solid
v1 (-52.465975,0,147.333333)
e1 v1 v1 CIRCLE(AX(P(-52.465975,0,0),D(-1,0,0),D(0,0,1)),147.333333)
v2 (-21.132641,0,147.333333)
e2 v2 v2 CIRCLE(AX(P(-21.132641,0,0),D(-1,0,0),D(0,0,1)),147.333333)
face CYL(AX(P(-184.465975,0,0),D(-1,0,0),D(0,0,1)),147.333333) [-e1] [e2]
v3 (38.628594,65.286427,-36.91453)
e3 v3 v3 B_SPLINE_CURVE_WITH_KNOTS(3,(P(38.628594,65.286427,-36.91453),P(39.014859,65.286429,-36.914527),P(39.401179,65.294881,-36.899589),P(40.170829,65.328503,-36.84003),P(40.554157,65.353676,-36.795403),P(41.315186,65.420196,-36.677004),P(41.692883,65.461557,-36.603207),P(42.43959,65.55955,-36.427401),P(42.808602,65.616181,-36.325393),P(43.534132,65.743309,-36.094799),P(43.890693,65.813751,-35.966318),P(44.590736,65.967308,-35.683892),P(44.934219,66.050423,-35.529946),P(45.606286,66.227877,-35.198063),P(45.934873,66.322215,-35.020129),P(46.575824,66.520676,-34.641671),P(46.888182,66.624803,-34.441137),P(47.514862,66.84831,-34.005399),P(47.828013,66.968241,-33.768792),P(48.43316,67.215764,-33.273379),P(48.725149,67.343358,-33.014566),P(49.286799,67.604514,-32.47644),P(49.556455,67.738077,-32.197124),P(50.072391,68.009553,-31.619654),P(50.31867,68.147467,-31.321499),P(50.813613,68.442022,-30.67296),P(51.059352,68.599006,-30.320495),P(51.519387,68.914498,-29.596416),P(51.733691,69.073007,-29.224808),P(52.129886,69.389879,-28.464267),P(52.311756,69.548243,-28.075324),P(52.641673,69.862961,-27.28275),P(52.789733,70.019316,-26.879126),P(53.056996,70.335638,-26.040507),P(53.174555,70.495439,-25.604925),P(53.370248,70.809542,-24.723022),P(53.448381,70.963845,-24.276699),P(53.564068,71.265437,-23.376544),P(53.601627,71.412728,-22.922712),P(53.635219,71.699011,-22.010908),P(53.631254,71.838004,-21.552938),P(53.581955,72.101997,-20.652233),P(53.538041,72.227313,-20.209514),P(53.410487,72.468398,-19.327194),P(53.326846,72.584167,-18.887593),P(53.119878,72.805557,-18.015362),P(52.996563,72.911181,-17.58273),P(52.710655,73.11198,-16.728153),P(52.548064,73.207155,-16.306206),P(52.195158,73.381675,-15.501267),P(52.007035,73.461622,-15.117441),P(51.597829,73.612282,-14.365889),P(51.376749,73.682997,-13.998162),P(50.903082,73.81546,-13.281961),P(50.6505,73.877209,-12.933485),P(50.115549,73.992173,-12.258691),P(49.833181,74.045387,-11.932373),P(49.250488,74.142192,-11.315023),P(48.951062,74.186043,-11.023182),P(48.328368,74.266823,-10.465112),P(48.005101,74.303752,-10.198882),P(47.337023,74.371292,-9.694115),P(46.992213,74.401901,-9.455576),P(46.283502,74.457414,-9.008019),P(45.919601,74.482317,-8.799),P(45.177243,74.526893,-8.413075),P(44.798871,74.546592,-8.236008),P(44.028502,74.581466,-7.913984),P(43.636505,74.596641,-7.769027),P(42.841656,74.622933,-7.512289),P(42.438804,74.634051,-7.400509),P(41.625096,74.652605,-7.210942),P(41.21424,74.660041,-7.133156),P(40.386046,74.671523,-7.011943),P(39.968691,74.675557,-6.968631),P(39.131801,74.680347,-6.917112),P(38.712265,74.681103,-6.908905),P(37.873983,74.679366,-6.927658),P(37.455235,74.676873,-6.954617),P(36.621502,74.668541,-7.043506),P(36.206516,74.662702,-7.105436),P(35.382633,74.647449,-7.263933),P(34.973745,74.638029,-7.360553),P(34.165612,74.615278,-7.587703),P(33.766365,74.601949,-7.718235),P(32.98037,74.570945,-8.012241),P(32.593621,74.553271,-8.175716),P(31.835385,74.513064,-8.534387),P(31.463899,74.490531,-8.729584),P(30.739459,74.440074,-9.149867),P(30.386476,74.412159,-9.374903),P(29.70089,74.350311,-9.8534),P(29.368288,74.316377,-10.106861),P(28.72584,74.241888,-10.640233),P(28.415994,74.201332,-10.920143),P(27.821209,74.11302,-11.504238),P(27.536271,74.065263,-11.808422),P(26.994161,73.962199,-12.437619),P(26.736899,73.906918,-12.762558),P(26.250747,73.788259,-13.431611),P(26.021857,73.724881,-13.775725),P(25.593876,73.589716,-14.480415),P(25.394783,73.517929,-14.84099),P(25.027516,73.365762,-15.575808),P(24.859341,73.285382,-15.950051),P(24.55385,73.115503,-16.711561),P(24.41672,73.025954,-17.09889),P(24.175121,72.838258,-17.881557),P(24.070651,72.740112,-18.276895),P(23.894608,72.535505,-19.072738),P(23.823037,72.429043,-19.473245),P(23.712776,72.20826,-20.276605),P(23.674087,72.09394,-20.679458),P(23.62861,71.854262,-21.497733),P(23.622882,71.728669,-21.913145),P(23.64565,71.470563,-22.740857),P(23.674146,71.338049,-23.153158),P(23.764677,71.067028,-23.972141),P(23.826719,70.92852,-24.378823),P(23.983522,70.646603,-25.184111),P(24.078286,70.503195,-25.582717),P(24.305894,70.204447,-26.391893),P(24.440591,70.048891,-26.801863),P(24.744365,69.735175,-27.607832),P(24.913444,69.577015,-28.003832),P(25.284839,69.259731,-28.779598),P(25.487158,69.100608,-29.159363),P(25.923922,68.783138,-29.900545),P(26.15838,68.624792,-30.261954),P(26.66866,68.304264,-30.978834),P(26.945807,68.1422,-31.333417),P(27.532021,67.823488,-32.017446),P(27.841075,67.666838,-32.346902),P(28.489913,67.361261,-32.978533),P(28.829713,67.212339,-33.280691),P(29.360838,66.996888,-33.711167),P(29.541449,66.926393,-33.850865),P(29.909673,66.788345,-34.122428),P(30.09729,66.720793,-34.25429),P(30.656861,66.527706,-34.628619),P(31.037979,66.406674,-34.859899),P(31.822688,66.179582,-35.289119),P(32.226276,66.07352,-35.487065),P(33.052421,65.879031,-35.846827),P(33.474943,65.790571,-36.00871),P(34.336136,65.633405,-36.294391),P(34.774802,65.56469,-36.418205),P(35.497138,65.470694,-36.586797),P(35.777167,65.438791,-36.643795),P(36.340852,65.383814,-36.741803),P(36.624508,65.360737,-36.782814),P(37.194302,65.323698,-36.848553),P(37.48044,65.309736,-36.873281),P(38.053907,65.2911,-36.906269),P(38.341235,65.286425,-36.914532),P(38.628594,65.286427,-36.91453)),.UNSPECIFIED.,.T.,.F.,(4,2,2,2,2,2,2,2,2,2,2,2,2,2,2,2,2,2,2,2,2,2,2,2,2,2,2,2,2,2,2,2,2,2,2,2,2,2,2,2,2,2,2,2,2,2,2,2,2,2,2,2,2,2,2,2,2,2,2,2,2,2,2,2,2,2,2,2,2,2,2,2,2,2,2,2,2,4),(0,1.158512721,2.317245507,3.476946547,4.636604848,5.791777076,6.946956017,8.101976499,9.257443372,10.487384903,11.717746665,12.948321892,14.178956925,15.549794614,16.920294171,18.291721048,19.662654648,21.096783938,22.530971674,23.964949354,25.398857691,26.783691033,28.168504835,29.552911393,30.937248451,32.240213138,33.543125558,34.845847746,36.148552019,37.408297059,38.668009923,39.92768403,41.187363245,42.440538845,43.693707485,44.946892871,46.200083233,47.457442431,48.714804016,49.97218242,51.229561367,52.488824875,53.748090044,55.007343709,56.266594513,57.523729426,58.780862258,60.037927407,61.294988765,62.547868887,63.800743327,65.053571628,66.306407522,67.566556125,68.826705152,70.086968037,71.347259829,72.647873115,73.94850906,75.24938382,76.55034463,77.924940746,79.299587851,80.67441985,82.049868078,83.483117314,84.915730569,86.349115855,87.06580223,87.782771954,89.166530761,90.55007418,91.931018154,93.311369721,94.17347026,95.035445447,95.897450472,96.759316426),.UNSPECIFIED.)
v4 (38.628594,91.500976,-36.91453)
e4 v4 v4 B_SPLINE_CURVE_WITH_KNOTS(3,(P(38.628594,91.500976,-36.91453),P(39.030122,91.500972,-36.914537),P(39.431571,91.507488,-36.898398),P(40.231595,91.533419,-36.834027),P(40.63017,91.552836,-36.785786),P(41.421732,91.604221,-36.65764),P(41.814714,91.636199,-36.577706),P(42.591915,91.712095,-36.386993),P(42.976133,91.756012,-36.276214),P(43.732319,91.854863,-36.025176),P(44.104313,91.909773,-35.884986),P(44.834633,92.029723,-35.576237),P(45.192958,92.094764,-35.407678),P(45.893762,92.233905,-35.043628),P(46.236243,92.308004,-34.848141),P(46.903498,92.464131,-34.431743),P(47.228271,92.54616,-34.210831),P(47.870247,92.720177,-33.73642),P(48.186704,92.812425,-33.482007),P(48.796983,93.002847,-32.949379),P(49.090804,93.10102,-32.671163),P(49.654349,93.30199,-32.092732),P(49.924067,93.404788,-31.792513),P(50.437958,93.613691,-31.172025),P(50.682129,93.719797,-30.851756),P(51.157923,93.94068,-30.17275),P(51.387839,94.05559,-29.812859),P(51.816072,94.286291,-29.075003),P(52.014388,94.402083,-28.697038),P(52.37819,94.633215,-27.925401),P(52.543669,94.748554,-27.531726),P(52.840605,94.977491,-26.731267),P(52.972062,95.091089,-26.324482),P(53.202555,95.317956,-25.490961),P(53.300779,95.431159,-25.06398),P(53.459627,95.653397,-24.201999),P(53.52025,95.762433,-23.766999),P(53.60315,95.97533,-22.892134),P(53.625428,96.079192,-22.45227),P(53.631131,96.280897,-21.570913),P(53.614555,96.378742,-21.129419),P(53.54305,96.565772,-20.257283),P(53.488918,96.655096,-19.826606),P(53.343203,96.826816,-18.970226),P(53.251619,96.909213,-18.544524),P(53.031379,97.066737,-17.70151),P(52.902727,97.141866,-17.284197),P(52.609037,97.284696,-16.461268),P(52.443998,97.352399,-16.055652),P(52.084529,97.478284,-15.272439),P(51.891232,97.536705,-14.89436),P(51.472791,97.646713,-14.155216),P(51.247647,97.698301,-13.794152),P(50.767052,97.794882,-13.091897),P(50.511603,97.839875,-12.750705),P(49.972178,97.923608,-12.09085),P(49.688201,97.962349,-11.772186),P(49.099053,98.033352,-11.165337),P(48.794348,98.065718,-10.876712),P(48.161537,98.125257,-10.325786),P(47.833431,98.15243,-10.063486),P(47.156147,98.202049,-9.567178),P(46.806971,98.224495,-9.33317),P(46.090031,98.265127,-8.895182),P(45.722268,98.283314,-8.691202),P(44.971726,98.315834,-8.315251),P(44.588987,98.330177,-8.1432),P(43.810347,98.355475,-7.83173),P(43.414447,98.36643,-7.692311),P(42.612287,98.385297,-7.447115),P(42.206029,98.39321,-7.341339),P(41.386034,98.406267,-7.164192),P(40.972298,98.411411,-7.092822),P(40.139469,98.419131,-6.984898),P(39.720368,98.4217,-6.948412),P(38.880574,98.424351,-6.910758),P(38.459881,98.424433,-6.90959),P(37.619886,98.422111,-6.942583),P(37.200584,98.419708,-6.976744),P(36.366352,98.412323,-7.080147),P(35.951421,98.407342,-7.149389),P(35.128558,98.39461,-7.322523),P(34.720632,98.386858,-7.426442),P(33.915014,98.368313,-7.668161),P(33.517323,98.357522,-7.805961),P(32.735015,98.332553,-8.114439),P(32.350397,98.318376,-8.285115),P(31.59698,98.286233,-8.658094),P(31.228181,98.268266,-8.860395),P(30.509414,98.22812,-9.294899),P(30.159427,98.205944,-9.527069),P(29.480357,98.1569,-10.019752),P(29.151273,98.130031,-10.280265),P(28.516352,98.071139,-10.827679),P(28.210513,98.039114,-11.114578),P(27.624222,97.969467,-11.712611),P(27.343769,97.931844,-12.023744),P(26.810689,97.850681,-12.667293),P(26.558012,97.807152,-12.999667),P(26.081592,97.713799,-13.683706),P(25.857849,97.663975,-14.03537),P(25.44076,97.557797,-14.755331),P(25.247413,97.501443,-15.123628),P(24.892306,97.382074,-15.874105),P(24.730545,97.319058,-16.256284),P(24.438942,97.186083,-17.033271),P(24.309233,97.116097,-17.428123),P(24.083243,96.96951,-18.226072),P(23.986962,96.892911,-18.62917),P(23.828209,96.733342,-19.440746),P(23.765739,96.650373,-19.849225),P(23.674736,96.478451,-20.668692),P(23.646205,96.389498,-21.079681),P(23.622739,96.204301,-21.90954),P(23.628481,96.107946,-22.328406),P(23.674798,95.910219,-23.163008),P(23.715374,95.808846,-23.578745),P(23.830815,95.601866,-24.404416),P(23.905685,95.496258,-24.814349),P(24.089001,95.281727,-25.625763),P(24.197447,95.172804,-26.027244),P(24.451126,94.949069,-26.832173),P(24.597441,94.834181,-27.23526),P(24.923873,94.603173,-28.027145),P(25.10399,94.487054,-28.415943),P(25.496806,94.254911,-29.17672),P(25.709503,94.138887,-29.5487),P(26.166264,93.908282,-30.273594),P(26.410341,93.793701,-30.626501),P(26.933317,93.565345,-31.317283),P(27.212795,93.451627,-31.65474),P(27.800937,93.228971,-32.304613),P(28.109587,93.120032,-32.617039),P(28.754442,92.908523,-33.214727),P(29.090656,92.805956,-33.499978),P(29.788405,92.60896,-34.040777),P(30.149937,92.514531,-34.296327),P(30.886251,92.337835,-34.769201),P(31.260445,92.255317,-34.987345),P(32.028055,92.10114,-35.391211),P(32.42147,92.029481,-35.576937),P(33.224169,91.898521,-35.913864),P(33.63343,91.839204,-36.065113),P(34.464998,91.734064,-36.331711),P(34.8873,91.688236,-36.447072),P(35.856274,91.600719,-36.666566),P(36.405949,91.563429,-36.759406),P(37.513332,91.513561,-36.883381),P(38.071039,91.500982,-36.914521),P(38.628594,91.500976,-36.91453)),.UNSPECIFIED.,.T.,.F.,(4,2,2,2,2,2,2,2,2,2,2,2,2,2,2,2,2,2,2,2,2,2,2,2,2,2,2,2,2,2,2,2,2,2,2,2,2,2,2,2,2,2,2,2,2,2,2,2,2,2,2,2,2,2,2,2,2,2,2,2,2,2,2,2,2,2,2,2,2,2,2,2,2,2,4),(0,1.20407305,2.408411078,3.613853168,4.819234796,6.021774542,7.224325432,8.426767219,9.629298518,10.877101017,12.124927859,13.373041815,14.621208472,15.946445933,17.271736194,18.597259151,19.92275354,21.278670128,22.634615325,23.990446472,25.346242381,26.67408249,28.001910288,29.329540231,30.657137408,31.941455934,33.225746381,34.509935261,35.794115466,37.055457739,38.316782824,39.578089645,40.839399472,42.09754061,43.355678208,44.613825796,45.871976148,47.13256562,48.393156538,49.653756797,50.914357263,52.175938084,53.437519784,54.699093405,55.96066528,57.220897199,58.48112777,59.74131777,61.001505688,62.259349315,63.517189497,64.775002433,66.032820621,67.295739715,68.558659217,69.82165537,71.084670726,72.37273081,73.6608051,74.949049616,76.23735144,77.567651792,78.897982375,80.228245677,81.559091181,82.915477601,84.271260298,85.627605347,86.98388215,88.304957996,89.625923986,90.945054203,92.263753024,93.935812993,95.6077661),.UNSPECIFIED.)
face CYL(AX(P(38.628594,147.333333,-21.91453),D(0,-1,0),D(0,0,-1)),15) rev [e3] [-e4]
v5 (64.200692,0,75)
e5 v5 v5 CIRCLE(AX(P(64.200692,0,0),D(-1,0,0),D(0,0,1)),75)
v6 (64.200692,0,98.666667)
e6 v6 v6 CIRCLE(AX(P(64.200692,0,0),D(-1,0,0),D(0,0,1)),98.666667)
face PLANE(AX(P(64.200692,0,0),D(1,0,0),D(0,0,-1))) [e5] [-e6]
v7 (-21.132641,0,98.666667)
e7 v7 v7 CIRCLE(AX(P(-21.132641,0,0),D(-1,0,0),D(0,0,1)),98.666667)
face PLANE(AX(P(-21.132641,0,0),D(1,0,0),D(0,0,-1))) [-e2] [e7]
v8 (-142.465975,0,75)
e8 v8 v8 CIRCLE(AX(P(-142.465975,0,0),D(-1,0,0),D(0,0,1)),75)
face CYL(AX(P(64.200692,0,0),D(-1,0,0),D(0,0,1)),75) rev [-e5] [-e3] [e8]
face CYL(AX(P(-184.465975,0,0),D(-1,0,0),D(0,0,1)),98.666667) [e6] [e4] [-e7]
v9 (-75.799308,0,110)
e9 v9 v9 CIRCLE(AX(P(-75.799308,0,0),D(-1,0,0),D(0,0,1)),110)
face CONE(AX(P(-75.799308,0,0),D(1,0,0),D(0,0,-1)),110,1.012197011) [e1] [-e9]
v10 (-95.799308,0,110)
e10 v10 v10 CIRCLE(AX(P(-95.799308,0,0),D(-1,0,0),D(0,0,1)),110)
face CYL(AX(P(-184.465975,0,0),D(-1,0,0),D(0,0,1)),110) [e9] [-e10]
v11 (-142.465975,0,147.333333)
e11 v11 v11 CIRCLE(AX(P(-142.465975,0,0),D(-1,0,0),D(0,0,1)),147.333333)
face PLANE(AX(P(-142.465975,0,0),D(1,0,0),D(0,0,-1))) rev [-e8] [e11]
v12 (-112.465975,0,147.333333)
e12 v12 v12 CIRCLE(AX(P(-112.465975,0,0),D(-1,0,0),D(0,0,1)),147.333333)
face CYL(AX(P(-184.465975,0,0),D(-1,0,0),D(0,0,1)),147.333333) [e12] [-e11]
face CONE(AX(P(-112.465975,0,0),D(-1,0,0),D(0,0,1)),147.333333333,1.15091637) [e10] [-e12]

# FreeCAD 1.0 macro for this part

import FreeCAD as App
import Part
import Sketcher
from FreeCAD import Vector
Q = App.Units.Quantity

doc = App.newDocument("Part")
body = doc.addObject("PartDesign::Body", "Body")

sketch1 = body.newObject("Sketcher::SketchObject", "Sketch")
sketch1.AttachmentSupport = (doc.getObject("XY_Plane"), [""])
sketch1.MapMode = "FlatFace"
sketch1.addGeometry(Part.LineSegment(Vector(-137, 0, 0), Vector(64, 0, 0)), False)
sketch1.addGeometry(Part.LineSegment(Vector(64, 0, 0), Vector(64, 74, 0)), False)
sketch1.addGeometry(Part.LineSegment(Vector(64, 74, 0), Vector(64, 99, 0)), False)
sketch1.addGeometry(Part.LineSegment(Vector(64, 99, 0), Vector(-21, 99, 0)), False)
sketch1.addGeometry(Part.LineSegment(Vector(-21, 99, 0), Vector(-21, 147, 0)), False)
sketch1.addGeometry(Part.LineSegment(Vector(-21, 147, 0), Vector(-52, 147, 0)), False)
sketch1.addGeometry(Part.LineSegment(Vector(-52, 147, 0), Vector(-76, 110, 0)), False)
sketch1.addGeometry(Part.LineSegment(Vector(-76, 110, 0), Vector(-96, 110, 0)), False)
sketch1.addGeometry(Part.LineSegment(Vector(-96, 110, 0), Vector(-112, 147, 0)), False)
sketch1.addGeometry(Part.LineSegment(Vector(-112, 147, 0), Vector(-142, 147, 0)), False)
sketch1.addGeometry(Part.LineSegment(Vector(-142, 147, 0), Vector(-142, 0, 0)), False)
sketch1.addGeometry(Part.LineSegment(Vector(-142, 0, 0), Vector(-137, 0, 0)), False)
sketch1.addConstraint(Sketcher.Constraint("Coincident", 0, 2, 1, 1))
sketch1.addConstraint(Sketcher.Constraint("Coincident", 1, 2, 2, 1))
sketch1.addConstraint(Sketcher.Constraint("Coincident", 2, 2, 3, 1))
sketch1.addConstraint(Sketcher.Constraint("Coincident", 3, 2, 4, 1))
sketch1.addConstraint(Sketcher.Constraint("Coincident", 4, 2, 5, 1))
sketch1.addConstraint(Sketcher.Constraint("Coincident", 5, 2, 6, 1))
sketch1.addConstraint(Sketcher.Constraint("Coincident", 6, 2, 7, 1))
sketch1.addConstraint(Sketcher.Constraint("Coincident", 7, 2, 8, 1))
sketch1.addConstraint(Sketcher.Constraint("Coincident", 8, 2, 9, 1))
sketch1.addConstraint(Sketcher.Constraint("Coincident", 9, 2, 10, 1))
sketch1.addConstraint(Sketcher.Constraint("Coincident", 10, 2, 11, 1))
sketch1.addConstraint(Sketcher.Constraint("Coincident", 11, 2, 0, 1))
sketch1.addConstraint(Sketcher.Constraint("Horizontal", 0))
sketch1.addConstraint(Sketcher.Constraint("Vertical", 1))
sketch1.addConstraint(Sketcher.Constraint("Vertical", 2))
sketch1.addConstraint(Sketcher.Constraint("Horizontal", 3))
sketch1.addConstraint(Sketcher.Constraint("Vertical", 4))
sketch1.addConstraint(Sketcher.Constraint("Horizontal", 5))
sketch1.addConstraint(Sketcher.Constraint("Horizontal", 7))
sketch1.addConstraint(Sketcher.Constraint("Horizontal", 9))
sketch1.addConstraint(Sketcher.Constraint("Vertical", 10))
sketch1.addConstraint(Sketcher.Constraint("Horizontal", 11))
sketch1.addConstraint(Sketcher.Constraint("PointOnObject", 0, 2, -1))
sketch1.addConstraint(Sketcher.Constraint("Horizontal", 5, 2, 8, 2))
sketch1.addConstraint(Sketcher.Constraint("DistanceX", 7, 2, 7, 1, Q("20 mm")))
sketch1.addConstraint(Sketcher.Constraint("DistanceX", 9, 2, 9, 1, Q("30 mm")))
sketch1.addConstraint(Sketcher.Constraint("DistanceX", 11, 1, 11, 2, Q("5 mm")))
sketch1.addConstraint(Sketcher.Constraint("DistanceY", 2, 1, 2, 2, Q("25 mm")))
sketch1.addConstraint(Sketcher.Constraint("DistanceY", -1, 1, 6, 2, Q("110 mm")))
sketch1.addConstraint(Sketcher.Constraint("DistanceX", 6, 2, 2, 2, Q("140 mm")))
sketch1.addConstraint(Sketcher.Constraint("DistanceX", 8, 2, 5, 2, Q("60 mm")))
sketch1.addConstraint(Sketcher.Constraint("Distance", 8, Q("40.884662 mm")))
sketch1.addConstraint(Sketcher.Constraint("DistanceX", 0, 1, 0, 2, Q("201.666667 mm")))
sketch1.addConstraint(Sketcher.Constraint("DistanceX", 3, 2, 3, 1, Q("85.333333 mm")))
sketch1.addConstraint(Sketcher.Constraint("DistanceY", 1, 1, 1, 2, Q("73.666667 mm")))
sketch1.addConstraint(Sketcher.Constraint("DistanceX", 3, 2, -1, 1, Q("21.132641 mm")))
revolution = body.newObject("PartDesign::Revolution", "Revolution")
revolution.Profile = sketch1
revolution.ReferenceAxis = (sketch1, ["H_Axis"])
revolution.Angle = 360

sketch2 = body.newObject("Sketcher::SketchObject", "Sketch001")
sketch2.AttachmentSupport = (doc.getObject("YZ_Plane"), [""])
sketch2.MapMode = "FlatFace"
sketch2.AttachmentOffset = App.Placement(Vector(0, 0, -142.465975), App.Rotation())
sketch2.addGeometry(Part.Circle(Vector(0, 0, 0), Vector(0, 0, 1), 75), False)
sketch2.addConstraint(Sketcher.Constraint("Coincident", 0, 3, -1, 1))
sketch2.addConstraint(Sketcher.Constraint("Diameter", 0, Q("150 mm")))
pocket1 = body.newObject("PartDesign::Pocket", "Pocket")
pocket1.Profile = sketch2
pocket1.Type = "ThroughAll"
pocket1.Reversed = True

sketch3 = body.newObject("Sketcher::SketchObject", "Sketch002")
sketch3.AttachmentSupport = (doc.getObject("XZ_Plane"), [""])
sketch3.MapMode = "FlatFace"
sketch3.AttachmentOffset = App.Placement(Vector(0, 0, -25), App.Rotation())
sketch3.addGeometry(Part.Circle(Vector(39, -22, 0), Vector(0, 0, 1), 15), False)
sketch3.addConstraint(Sketcher.Constraint("Diameter", 0, Q("30 mm")))
sketch3.addConstraint(Sketcher.Constraint("DistanceY", 0, 3, -1, 1, Q("21.91453 mm")))
sketch3.addConstraint(Sketcher.Constraint("DistanceX", -1, 1, 0, 3, Q("38.628594 mm")))
pocket2 = body.newObject("PartDesign::Pocket", "Pocket001")
pocket2.Profile = sketch3
pocket2.Type = "ThroughAll"

doc.recompute()
